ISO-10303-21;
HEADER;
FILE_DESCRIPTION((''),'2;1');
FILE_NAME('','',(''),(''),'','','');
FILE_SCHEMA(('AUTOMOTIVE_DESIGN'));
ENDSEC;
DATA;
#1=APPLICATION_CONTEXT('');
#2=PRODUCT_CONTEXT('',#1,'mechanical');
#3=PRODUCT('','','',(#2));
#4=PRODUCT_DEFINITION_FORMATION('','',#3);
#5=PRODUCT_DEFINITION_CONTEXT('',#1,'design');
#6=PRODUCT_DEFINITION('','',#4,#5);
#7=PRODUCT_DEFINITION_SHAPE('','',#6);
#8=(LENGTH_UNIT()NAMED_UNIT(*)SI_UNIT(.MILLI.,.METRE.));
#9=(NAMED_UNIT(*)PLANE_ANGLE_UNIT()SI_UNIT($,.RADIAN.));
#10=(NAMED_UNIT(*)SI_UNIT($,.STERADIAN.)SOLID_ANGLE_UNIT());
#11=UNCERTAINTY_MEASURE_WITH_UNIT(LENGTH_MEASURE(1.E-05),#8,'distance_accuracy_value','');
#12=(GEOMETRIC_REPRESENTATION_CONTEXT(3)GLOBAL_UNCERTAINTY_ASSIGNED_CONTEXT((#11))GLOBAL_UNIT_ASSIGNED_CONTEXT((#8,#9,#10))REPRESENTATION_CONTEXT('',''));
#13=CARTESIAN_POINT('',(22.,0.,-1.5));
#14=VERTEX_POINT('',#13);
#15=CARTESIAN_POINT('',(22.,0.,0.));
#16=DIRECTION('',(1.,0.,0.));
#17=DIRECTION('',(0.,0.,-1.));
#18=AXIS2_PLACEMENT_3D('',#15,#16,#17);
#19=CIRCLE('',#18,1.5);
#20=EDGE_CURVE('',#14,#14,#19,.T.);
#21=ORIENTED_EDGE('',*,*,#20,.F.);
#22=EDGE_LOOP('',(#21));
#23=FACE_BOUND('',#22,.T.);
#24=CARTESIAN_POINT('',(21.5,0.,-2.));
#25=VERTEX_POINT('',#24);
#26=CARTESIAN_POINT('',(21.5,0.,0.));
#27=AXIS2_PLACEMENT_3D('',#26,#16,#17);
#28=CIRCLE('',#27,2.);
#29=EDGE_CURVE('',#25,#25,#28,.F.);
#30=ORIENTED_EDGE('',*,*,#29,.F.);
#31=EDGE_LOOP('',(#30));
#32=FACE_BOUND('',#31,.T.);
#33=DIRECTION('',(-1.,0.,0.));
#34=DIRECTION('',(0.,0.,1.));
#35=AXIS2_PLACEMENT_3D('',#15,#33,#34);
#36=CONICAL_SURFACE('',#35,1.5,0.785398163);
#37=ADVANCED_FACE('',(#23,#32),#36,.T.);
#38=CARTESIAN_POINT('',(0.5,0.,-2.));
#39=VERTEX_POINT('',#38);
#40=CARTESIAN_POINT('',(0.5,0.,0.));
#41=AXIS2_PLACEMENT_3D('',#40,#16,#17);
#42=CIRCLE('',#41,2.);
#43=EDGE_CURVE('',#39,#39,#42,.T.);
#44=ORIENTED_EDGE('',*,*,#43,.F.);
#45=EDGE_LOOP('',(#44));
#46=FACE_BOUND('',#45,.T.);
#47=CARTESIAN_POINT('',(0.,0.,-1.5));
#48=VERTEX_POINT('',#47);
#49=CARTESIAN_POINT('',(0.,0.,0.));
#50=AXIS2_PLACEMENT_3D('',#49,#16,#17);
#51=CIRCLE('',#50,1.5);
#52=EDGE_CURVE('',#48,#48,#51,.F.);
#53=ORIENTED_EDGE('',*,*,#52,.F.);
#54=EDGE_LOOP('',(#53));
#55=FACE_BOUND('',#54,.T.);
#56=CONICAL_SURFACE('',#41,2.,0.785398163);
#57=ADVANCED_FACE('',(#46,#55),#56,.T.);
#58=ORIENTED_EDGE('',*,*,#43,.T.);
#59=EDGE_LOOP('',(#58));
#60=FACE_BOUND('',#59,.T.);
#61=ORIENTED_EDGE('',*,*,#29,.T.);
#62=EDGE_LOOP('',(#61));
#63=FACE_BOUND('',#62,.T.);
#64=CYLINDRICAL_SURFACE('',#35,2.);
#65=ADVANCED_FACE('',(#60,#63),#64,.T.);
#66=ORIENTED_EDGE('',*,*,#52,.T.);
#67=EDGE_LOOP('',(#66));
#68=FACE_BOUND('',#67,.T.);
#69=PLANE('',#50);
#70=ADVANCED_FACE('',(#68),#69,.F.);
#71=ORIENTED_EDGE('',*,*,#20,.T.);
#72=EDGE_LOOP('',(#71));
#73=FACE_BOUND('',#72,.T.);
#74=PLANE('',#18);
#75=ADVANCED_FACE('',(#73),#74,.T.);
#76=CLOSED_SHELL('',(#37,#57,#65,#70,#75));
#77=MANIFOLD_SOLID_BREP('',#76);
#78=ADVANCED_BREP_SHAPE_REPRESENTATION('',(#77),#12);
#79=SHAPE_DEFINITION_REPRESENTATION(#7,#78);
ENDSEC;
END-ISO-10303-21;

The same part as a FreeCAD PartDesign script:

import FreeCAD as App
import Part
import Sketcher
Q = App.Units.Quantity


def edges_at(feature, points):
    """Names of the edges that pass closest to the given points."""
    edges = feature.Shape.Edges
    near = lambda p: min(range(len(edges)), key=lambda i: edges[i].distToShape(Part.Vertex(*p))[0])
    return sorted({f"Edge{near(p) + 1}" for p in points})

doc = App.newDocument("Part")
params = doc.addObject("Spreadsheet::Sheet", "Params")
for row, (alias, value) in enumerate([
    ("sketch1_diameter", "4 mm"),
    ("pad1_length", "22 mm"),
    ("chamfer_size", "0.5 mm"),
], start=1):
    params.set(f"A{row}", alias)
    params.set(f"B{row}", "=" + value)
    params.setAlias(f"B{row}", alias)

body = doc.addObject("PartDesign::Body", "Body")

# Sketch on YZ plane
sketch1 = doc.addObject("Sketcher::SketchObject", "Sketch")
body.addObject(sketch1)
sketch1.AttachmentSupport = (doc.YZ_Plane, [""])
sketch1.MapMode = "FlatFace"
sketch1.addGeometry(Part.Circle(App.Vector(0, 0, 0), App.Vector(0, 0, 1), 2), False)
sketch1.addConstraint(Sketcher.Constraint("Coincident", 0, 3, -1, 1))
sketch1.addConstraint(Sketcher.Constraint("Diameter", 0, Q("4 mm")))
sketch1.setExpression("Constraints[1]", "Params.sketch1_diameter")
pad1 = doc.addObject("PartDesign::Pad", "Pad")
body.addObject(pad1)
pad1.Profile = sketch1
pad1.setExpression("Length", "Params.pad1_length")
doc.recompute()

chamfer = doc.addObject("PartDesign::Chamfer", "Chamfer")
body.addObject(chamfer)
chamfer.Base = (pad1, edges_at(pad1, [(0, 0, 2), (22, 0, 2)]))
chamfer.setExpression("Size", "Params.chamfer_size")

doc.recompute()
